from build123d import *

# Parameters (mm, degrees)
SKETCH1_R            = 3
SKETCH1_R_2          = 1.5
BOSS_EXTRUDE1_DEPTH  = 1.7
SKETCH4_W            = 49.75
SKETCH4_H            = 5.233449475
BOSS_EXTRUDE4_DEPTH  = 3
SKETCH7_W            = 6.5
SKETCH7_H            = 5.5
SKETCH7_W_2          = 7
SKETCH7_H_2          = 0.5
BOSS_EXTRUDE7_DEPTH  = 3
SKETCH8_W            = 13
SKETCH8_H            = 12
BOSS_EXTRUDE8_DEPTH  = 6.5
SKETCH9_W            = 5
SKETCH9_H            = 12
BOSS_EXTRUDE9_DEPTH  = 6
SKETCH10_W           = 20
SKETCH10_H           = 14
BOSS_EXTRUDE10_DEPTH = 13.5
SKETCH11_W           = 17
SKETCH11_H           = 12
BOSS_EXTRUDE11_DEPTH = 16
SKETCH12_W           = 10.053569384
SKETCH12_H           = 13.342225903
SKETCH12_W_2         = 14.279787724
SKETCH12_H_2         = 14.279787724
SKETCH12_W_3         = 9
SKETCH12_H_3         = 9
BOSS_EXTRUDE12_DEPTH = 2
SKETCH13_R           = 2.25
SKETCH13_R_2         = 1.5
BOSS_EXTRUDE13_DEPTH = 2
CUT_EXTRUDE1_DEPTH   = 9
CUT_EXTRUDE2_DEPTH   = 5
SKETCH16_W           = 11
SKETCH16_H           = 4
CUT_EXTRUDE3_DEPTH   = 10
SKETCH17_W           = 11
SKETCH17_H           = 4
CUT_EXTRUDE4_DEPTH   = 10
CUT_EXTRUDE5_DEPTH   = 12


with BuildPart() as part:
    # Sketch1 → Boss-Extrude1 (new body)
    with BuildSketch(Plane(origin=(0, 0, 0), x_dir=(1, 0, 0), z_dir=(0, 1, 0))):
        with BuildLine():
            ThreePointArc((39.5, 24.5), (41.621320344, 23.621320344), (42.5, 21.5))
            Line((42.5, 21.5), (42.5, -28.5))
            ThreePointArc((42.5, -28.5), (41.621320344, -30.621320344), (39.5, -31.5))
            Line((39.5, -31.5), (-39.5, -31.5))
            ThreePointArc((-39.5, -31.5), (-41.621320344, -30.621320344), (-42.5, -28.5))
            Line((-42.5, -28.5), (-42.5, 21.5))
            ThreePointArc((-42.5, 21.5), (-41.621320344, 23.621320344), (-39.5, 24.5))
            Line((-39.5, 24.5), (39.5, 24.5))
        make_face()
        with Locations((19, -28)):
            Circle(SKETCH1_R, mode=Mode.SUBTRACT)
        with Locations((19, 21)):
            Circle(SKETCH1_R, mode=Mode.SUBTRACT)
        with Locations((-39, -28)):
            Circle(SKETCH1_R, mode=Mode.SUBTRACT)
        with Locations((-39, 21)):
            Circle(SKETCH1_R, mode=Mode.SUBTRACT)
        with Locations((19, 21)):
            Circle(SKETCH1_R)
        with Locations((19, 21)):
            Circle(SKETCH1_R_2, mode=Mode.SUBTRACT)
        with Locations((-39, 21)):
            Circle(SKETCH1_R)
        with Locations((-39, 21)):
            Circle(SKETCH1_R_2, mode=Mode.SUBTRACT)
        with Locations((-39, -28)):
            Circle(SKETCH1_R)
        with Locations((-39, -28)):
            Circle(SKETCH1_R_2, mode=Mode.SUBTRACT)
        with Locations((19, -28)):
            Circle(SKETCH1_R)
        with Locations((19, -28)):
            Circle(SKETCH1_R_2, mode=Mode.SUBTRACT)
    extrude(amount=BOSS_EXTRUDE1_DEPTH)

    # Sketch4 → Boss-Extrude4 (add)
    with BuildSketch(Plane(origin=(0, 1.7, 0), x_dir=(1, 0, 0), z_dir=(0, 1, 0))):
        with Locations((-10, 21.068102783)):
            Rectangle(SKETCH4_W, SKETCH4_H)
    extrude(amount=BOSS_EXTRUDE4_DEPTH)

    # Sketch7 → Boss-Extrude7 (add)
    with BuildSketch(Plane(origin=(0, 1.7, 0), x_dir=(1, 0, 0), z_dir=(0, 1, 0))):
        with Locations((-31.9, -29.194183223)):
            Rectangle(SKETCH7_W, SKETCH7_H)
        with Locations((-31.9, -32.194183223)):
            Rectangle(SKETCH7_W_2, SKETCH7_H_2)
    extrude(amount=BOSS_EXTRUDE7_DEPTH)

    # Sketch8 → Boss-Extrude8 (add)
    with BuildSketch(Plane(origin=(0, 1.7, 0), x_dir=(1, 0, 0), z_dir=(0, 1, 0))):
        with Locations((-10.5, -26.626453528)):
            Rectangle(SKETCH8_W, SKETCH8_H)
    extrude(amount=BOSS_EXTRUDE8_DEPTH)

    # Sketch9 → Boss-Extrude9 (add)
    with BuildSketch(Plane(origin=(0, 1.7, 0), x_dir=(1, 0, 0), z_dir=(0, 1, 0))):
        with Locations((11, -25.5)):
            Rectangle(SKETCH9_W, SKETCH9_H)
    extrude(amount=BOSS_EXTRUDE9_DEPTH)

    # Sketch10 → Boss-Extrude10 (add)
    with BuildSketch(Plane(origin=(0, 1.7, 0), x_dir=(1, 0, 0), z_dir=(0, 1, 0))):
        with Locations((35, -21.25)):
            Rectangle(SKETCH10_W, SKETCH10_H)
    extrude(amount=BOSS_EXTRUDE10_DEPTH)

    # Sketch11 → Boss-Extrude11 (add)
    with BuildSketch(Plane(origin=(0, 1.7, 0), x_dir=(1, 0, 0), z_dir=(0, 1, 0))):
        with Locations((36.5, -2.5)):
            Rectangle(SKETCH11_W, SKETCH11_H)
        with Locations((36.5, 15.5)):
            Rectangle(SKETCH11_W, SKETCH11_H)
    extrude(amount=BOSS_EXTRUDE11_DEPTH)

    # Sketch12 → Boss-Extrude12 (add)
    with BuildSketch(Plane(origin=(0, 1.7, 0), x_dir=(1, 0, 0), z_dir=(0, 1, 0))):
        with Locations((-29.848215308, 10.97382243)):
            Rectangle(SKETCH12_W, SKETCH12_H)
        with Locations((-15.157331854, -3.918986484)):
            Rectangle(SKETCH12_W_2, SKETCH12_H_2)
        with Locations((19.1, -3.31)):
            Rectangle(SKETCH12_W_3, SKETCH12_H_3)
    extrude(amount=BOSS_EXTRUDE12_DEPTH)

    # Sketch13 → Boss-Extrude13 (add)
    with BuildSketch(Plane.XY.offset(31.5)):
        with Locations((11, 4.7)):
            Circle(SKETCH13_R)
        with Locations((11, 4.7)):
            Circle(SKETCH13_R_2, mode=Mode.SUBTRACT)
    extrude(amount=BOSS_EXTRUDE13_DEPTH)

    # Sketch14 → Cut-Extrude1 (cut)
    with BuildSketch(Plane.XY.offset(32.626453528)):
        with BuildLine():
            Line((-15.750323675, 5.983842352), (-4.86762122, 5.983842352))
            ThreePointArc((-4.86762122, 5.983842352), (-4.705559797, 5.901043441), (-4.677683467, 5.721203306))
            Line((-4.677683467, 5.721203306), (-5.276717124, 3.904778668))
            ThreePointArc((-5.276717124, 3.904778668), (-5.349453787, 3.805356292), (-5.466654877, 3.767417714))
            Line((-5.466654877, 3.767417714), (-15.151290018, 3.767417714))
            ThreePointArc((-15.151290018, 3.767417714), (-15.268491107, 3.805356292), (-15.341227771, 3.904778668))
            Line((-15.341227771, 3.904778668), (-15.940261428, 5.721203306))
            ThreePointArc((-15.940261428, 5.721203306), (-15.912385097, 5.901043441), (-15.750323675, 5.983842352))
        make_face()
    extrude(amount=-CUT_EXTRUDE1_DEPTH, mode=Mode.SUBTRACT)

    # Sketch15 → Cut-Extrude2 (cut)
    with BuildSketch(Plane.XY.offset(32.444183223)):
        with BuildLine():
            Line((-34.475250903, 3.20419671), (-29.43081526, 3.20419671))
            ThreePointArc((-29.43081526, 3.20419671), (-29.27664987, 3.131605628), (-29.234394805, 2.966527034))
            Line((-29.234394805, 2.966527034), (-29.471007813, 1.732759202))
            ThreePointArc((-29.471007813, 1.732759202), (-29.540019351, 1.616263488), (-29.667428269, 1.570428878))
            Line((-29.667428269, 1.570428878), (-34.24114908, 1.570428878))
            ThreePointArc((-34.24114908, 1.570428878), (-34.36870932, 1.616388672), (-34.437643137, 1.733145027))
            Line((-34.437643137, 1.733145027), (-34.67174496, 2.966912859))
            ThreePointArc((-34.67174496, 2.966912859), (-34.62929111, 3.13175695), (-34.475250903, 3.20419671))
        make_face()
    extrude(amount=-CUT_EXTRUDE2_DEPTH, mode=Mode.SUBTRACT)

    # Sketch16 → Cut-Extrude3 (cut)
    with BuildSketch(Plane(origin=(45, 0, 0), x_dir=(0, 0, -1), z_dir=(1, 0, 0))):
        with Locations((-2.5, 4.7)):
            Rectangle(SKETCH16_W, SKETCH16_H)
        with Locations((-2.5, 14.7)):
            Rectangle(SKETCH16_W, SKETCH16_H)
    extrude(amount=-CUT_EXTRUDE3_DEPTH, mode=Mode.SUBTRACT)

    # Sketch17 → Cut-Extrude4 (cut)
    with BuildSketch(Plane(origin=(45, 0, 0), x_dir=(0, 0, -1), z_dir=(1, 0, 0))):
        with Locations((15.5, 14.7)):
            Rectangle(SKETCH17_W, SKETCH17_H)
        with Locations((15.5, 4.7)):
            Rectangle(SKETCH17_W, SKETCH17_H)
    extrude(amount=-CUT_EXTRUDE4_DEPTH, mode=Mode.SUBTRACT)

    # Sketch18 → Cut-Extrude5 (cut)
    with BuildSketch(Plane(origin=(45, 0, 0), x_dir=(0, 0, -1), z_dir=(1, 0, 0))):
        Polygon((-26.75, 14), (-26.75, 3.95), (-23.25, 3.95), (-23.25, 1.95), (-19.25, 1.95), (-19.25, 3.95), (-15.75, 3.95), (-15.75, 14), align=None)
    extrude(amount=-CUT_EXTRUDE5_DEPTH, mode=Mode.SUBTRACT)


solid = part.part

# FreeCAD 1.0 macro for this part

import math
import FreeCAD as App
import Part
import Sketcher

V = App.Vector

doc = App.newDocument("Part")
params = doc.addObject("Spreadsheet::Sheet", "Params")
for row, (alias, value) in enumerate([
    ("sketch1_diameter", "3 mm"),
    ("sketch1_radius", "3 mm"),
    ("sketch1_width", "79 mm"),
    ("sketch1_height", "50 mm"),
    ("pad1_length", "1.7 mm"),
    ("sketch2_width", "49.75 mm"),
    ("pad2_length", "3 mm"),
    ("sketch3_width", "7 mm"),
    ("sketch3_width2", "6.5 mm"),
    ("sketch3_height", "5.5 mm"),
    ("sketch3_height2", "0.5 mm"),
    ("pad3_length", "3 mm"),
    ("sketch4_width", "13 mm"),
    ("sketch4_height", "12 mm"),
    ("pad4_length", "6.5 mm"),
    ("sketch5_width", "5 mm"),
    ("sketch5_height", "12 mm"),
    ("pad5_length", "6 mm"),
    ("sketch6_width", "20 mm"),
    ("sketch6_height", "14 mm"),
    ("pad6_length", "13.5 mm"),
    ("sketch7_width", "17 mm"),
    ("sketch7_height", "12 mm"),
    ("pad7_length", "16 mm"),
    ("sketch8_width", "9 mm"),
    ("pad8_length", "2 mm"),
    ("sketch9_diameter", "3 mm"),
    ("sketch9_diameter2", "4.5 mm"),
    ("pad9_length", "2 mm"),
    ("sketch10_radius", "0.2 mm"),
    ("sketch10_radius2", "0.2 mm"),
    ("sketch10_radius3", "0.2 mm"),
    ("sketch10_radius4", "0.2 mm"),
    ("pocket1_length", "9 mm"),
    ("sketch11_radius", "0.2 mm"),
    ("pocket2_length", "5 mm"),
    ("sketch12_width", "4 mm"),
    ("sketch12_height", "11 mm"),
    ("pocket3_length", "10 mm"),
    ("sketch13_width", "4 mm"),
    ("sketch13_height", "11 mm"),
    ("pocket4_length", "10 mm"),
    ("sketch14_width", "2 mm"),
    ("sketch14_height", "4 mm"),
    ("sketch14_height2", "11 mm"),
    ("sketch14_width2", "10.05 mm"),
    ("pocket5_length", "12 mm"),
], start=1):
    params.set(f"A{row}", alias)
    params.set(f"B{row}", "=" + value)
    params.setAlias(f"B{row}", alias)

body = doc.addObject("PartDesign::Body", "Body")

sketch1 = doc.addObject("Sketcher::SketchObject", "Sketch")
body.addObject(sketch1)
sketch1.AttachmentSupport = (doc.XZ_Plane, [""])
sketch1.MapMode = "FlatFace"
sketch1.addGeometry([
    Part.ArcOfCircle(Part.Circle(V(39.5, -21.5, 0), V(0, 0, 1), 3), math.radians(-90), math.radians(0)),
    Part.LineSegment(V(39.5, -24.5, 0), V(-39.5, -24.5, 0)),
    Part.ArcOfCircle(Part.Circle(V(-39.5, -21.5, 0), V(0, 0, 1), 3), math.radians(180), math.radians(270)),
    Part.LineSegment(V(-42.5, -21.5, 0), V(-42.5, 28.5, 0)),
    Part.ArcOfCircle(Part.Circle(V(-39.5, 28.5, 0), V(0, 0, 1), 3), math.radians(90), math.radians(180)),
    Part.LineSegment(V(-39.5, 31.5, 0), V(39.5, 31.5, 0)),
    Part.ArcOfCircle(Part.Circle(V(39.5, 28.5, 0), V(0, 0, 1), 3), math.radians(0), math.radians(90)),
    Part.LineSegment(V(42.5, 28.5, 0), V(42.5, -21.5, 0)),
    Part.Circle(V(19, 28, 0), V(0, 0, 1), 1.5),
    Part.Circle(V(-39, 28, 0), V(0, 0, 1), 1.5),
    Part.Circle(V(19, -21, 0), V(0, 0, 1), 1.5),
    Part.Circle(V(-39, -21, 0), V(0, 0, 1), 1.5),
], False)
sketch1.addConstraint([
    Sketcher.Constraint("Tangent", 0, 1, 1, 1),
    Sketcher.Constraint("Tangent", 1, 2, 2, 2),
    Sketcher.Constraint("Tangent", 2, 1, 3, 1),
    Sketcher.Constraint("Tangent", 3, 2, 4, 2),
    Sketcher.Constraint("Tangent", 4, 1, 5, 1),
    Sketcher.Constraint("Tangent", 5, 2, 6, 2),
    Sketcher.Constraint("Tangent", 6, 1, 7, 1),
    Sketcher.Constraint("Tangent", 7, 2, 0, 2),
    Sketcher.Constraint("Horizontal", 1),
    Sketcher.Constraint("Vertical", 3),
    Sketcher.Constraint("Horizontal", 5),
    Sketcher.Constraint("Vertical", 7),
    Sketcher.Constraint("Equal", 0, 2),
    Sketcher.Constraint("Equal", 2, 4),
    Sketcher.Constraint("Equal", 4, 6),
    Sketcher.Constraint("Equal", 8, 9),
    Sketcher.Constraint("Equal", 9, 10),
    Sketcher.Constraint("Equal", 10, 11),
    Sketcher.Constraint("Horizontal", 8, 3, 9, 3),
    Sketcher.Constraint("Horizontal", 10, 3, 11, 3),
    Sketcher.Constraint("Vertical", 8, 3, 10, 3),
    Sketcher.Constraint("Vertical", 9, 3, 11, 3),
    Sketcher.Constraint("Diameter", 8, 3.0),
    Sketcher.Constraint("Radius", 0, 3.0),
    Sketcher.Constraint("DistanceX", 1, 2, 1, 1, 79.0),
    Sketcher.Constraint("DistanceY", 3, 1, 3, 2, 50.0),
    Sketcher.Constraint("DistanceX", -1, 1, 8, 3, 19.0),
    Sketcher.Constraint("DistanceY", -1, 1, 8, 3, 28.0),
    Sketcher.Constraint("DistanceX", 9, 3, -1, 1, 39.0),
    Sketcher.Constraint("DistanceY", 10, 3, -1, 1, 21.0),
    Sketcher.Constraint("DistanceX", -1, 1, 0, 3, 39.5),
    Sketcher.Constraint("DistanceY", 0, 3, -1, 1, 21.5),
])
sketch1.setExpression("Constraints[22]", "Params.sketch1_diameter")
sketch1.setExpression("Constraints[23]", "Params.sketch1_radius")
sketch1.setExpression("Constraints[24]", "Params.sketch1_width")
sketch1.setExpression("Constraints[25]", "Params.sketch1_height")
pad1 = doc.addObject("PartDesign::Pad", "Pad")
body.addObject(pad1)
pad1.Profile = sketch1
pad1.setExpression("Length", "Params.pad1_length")
pad1.Reversed = True

sketch2 = doc.addObject("Sketcher::SketchObject", "Sketch001")
body.addObject(sketch2)
sketch2.AttachmentSupport = (doc.XZ_Plane, [""])
sketch2.MapMode = "FlatFace"
sketch2.AttachmentOffset = App.Placement(V(0, 0, -1.7), App.Rotation())
sketch2.addGeometry([
    Part.LineSegment(V(-34.875, -23.684828, 0), V(-34.875, -18.451378, 0)),
    Part.LineSegment(V(-34.875, -18.451378, 0), V(14.875, -18.451378, 0)),
    Part.LineSegment(V(14.875, -18.451378, 0), V(14.875, -23.684828, 0)),
    Part.LineSegment(V(14.875, -23.684828, 0), V(-34.875, -23.684828, 0)),
], False)
sketch2.addConstraint([
    Sketcher.Constraint("Coincident", 0, 2, 1, 1),
    Sketcher.Constraint("Coincident", 1, 2, 2, 1),
    Sketcher.Constraint("Coincident", 2, 2, 3, 1),
    Sketcher.Constraint("Coincident", 3, 2, 0, 1),
    Sketcher.Constraint("Vertical", 0),
    Sketcher.Constraint("Horizontal", 1),
    Sketcher.Constraint("Vertical", 2),
    Sketcher.Constraint("Horizontal", 3),
    Sketcher.Constraint("DistanceX", 1, 1, 1, 2, 49.75),
    Sketcher.Constraint("DistanceX", 0, 2, -1, 1, 34.875),
    Sketcher.Constraint("DistanceY", 0, 1, 0, 2, 5.233449),
    Sketcher.Constraint("DistanceY", 0, 2, -1, 1, 18.451378),
])
sketch2.setExpression("Constraints[8]", "Params.sketch2_width")
pad2 = doc.addObject("PartDesign::Pad", "Pad001")
body.addObject(pad2)
pad2.Profile = sketch2
pad2.setExpression("Length", "Params.pad2_length")
pad2.Reversed = True

sketch3 = doc.addObject("Sketcher::SketchObject", "Sketch002")
body.addObject(sketch3)
sketch3.AttachmentSupport = (doc.XZ_Plane, [""])
sketch3.MapMode = "FlatFace"
sketch3.AttachmentOffset = App.Placement(V(0, 0, -1.7), App.Rotation())
sketch3.addGeometry([
    Part.LineSegment(V(-35.15, 26.444183, 0), V(-35.15, 31.944183, 0)),
    Part.LineSegment(V(-35.15, 31.944183, 0), V(-35.4, 31.944183, 0)),
    Part.LineSegment(V(-35.4, 31.944183, 0), V(-35.4, 32.444183, 0)),
    Part.LineSegment(V(-35.4, 32.444183, 0), V(-28.4, 32.444183, 0)),
    Part.LineSegment(V(-28.4, 32.444183, 0), V(-28.4, 31.944183, 0)),
    Part.LineSegment(V(-28.4, 31.944183, 0), V(-28.65, 31.944183, 0)),
    Part.LineSegment(V(-28.65, 31.944183, 0), V(-28.65, 26.444183, 0)),
    Part.LineSegment(V(-28.65, 26.444183, 0), V(-35.15, 26.444183, 0)),
], False)
sketch3.addConstraint([
    Sketcher.Constraint("Coincident", 0, 2, 1, 1),
    Sketcher.Constraint("Coincident", 1, 2, 2, 1),
    Sketcher.Constraint("Coincident", 2, 2, 3, 1),
    Sketcher.Constraint("Coincident", 3, 2, 4, 1),
    Sketcher.Constraint("Coincident", 4, 2, 5, 1),
    Sketcher.Constraint("Coincident", 5, 2, 6, 1),
    Sketcher.Constraint("Coincident", 6, 2, 7, 1),
    Sketcher.Constraint("Coincident", 7, 2, 0, 1),
    Sketcher.Constraint("Vertical", 0),
    Sketcher.Constraint("Horizontal", 1),
    Sketcher.Constraint("Vertical", 2),
    Sketcher.Constraint("Horizontal", 3),
    Sketcher.Constraint("Vertical", 4),
    Sketcher.Constraint("Horizontal", 5),
    Sketcher.Constraint("Vertical", 6),
    Sketcher.Constraint("Horizontal", 7),
    Sketcher.Constraint("Horizontal", 1, 2, 4, 2),
    Sketcher.Constraint("Equal", 1, 5),
    Sketcher.Constraint("DistanceX", 3, 1, 3, 2, 7.0),
    Sketcher.Constraint("DistanceX", 7, 2, 7, 1, 6.5),
    Sketcher.Constraint("DistanceY", 0, 1, 0, 2, 5.5),
    Sketcher.Constraint("DistanceY", 2, 1, 2, 2, 0.5),
    Sketcher.Constraint("DistanceX", 1, 2, -1, 1, 35.4),
    Sketcher.Constraint("DistanceY", -1, 1, 0, 2, 31.944183),
])
sketch3.setExpression("Constraints[18]", "Params.sketch3_width")
sketch3.setExpression("Constraints[19]", "Params.sketch3_width2")
sketch3.setExpression("Constraints[20]", "Params.sketch3_height")
sketch3.setExpression("Constraints[21]", "Params.sketch3_height2")
pad3 = doc.addObject("PartDesign::Pad", "Pad002")
body.addObject(pad3)
pad3.Profile = sketch3
pad3.setExpression("Length", "Params.pad3_length")
pad3.Reversed = True

sketch4 = doc.addObject("Sketcher::SketchObject", "Sketch003")
body.addObject(sketch4)
sketch4.AttachmentSupport = (doc.XZ_Plane, [""])
sketch4.MapMode = "FlatFace"
sketch4.AttachmentOffset = App.Placement(V(0, 0, -1.7), App.Rotation())
sketch4.addGeometry([
    Part.LineSegment(V(-17, 20.626454, 0), V(-17, 32.626454, 0)),
    Part.LineSegment(V(-17, 32.626454, 0), V(-4, 32.626454, 0)),
    Part.LineSegment(V(-4, 32.626454, 0), V(-4, 20.626454, 0)),
    Part.LineSegment(V(-4, 20.626454, 0), V(-17, 20.626454, 0)),
], False)
sketch4.addConstraint([
    Sketcher.Constraint("Coincident", 0, 2, 1, 1),
    Sketcher.Constraint("Coincident", 1, 2, 2, 1),
    Sketcher.Constraint("Coincident", 2, 2, 3, 1),
    Sketcher.Constraint("Coincident", 3, 2, 0, 1),
    Sketcher.Constraint("Vertical", 0),
    Sketcher.Constraint("Horizontal", 1),
    Sketcher.Constraint("Vertical", 2),
    Sketcher.Constraint("Horizontal", 3),
    Sketcher.Constraint("DistanceX", 1, 1, 1, 2, 13.0),
    Sketcher.Constraint("DistanceY", 0, 1, 0, 2, 12.0),
    Sketcher.Constraint("DistanceX", 0, 2, -1, 1, 17.0),
    Sketcher.Constraint("DistanceY", -1, 1, 0, 2, 32.626454),
])
sketch4.setExpression("Constraints[8]", "Params.sketch4_width")
sketch4.setExpression("Constraints[9]", "Params.sketch4_height")
pad4 = doc.addObject("PartDesign::Pad", "Pad003")
body.addObject(pad4)
pad4.Profile = sketch4
pad4.setExpression("Length", "Params.pad4_length")
pad4.Reversed = True

sketch5 = doc.addObject("Sketcher::SketchObject", "Sketch004")
body.addObject(sketch5)
sketch5.AttachmentSupport = (doc.XZ_Plane, [""])
sketch5.MapMode = "FlatFace"
sketch5.AttachmentOffset = App.Placement(V(0, 0, -1.7), App.Rotation())
sketch5.addGeometry([
    Part.LineSegment(V(8.5, 19.5, 0), V(8.5, 31.5, 0)),
    Part.LineSegment(V(8.5, 31.5, 0), V(13.5, 31.5, 0)),
    Part.LineSegment(V(13.5, 31.5, 0), V(13.5, 19.5, 0)),
    Part.LineSegment(V(13.5, 19.5, 0), V(8.5, 19.5, 0)),
], False)
sketch5.addConstraint([
    Sketcher.Constraint("Coincident", 0, 2, 1, 1),
    Sketcher.Constraint("Coincident", 1, 2, 2, 1),
    Sketcher.Constraint("Coincident", 2, 2, 3, 1),
    Sketcher.Constraint("Coincident", 3, 2, 0, 1),
    Sketcher.Constraint("Vertical", 0),
    Sketcher.Constraint("Horizontal", 1),
    Sketcher.Constraint("Vertical", 2),
    Sketcher.Constraint("Horizontal", 3),
    Sketcher.Constraint("DistanceX", 1, 1, 1, 2, 5.0),
    Sketcher.Constraint("DistanceY", 0, 1, 0, 2, 12.0),
    Sketcher.Constraint("DistanceX", -1, 1, 0, 2, 8.5),
    Sketcher.Constraint("DistanceY", -1, 1, 0, 2, 31.5),
])
sketch5.setExpression("Constraints[8]", "Params.sketch5_width")
sketch5.setExpression("Constraints[9]", "Params.sketch5_height")
pad5 = doc.addObject("PartDesign::Pad", "Pad004")
body.addObject(pad5)
pad5.Profile = sketch5
pad5.setExpression("Length", "Params.pad5_length")
pad5.Reversed = True

sketch6 = doc.addObject("Sketcher::SketchObject", "Sketch005")
body.addObject(sketch6)
sketch6.AttachmentSupport = (doc.XZ_Plane, [""])
sketch6.MapMode = "FlatFace"
sketch6.AttachmentOffset = App.Placement(V(0, 0, -1.7), App.Rotation())
sketch6.addGeometry([
    Part.LineSegment(V(25, 14.25, 0), V(25, 28.25, 0)),
    Part.LineSegment(V(25, 28.25, 0), V(45, 28.25, 0)),
    Part.LineSegment(V(45, 28.25, 0), V(45, 14.25, 0)),
    Part.LineSegment(V(45, 14.25, 0), V(25, 14.25, 0)),
], False)
sketch6.addConstraint([
    Sketcher.Constraint("Coincident", 0, 2, 1, 1),
    Sketcher.Constraint("Coincident", 1, 2, 2, 1),
    Sketcher.Constraint("Coincident", 2, 2, 3, 1),
    Sketcher.Constraint("Coincident", 3, 2, 0, 1),
    Sketcher.Constraint("Vertical", 0),
    Sketcher.Constraint("Horizontal", 1),
    Sketcher.Constraint("Vertical", 2),
    Sketcher.Constraint("Horizontal", 3),
    Sketcher.Constraint("DistanceX", 1, 1, 1, 2, 20.0),
    Sketcher.Constraint("DistanceY", 0, 1, 0, 2, 14.0),
    Sketcher.Constraint("DistanceX", -1, 1, 0, 2, 25.0),
    Sketcher.Constraint("DistanceY", -1, 1, 0, 2, 28.25),
])
sketch6.setExpression("Constraints[8]", "Params.sketch6_width")
sketch6.setExpression("Constraints[9]", "Params.sketch6_height")
pad6 = doc.addObject("PartDesign::Pad", "Pad005")
body.addObject(pad6)
pad6.Profile = sketch6
pad6.setExpression("Length", "Params.pad6_length")
pad6.Reversed = True

sketch7 = doc.addObject("Sketcher::SketchObject", "Sketch006")
body.addObject(sketch7)
sketch7.AttachmentSupport = (doc.XZ_Plane, [""])
sketch7.MapMode = "FlatFace"
sketch7.AttachmentOffset = App.Placement(V(0, 0, -1.7), App.Rotation())
sketch7.addGeometry([
    Part.LineSegment(V(28, -3.5, 0), V(28, 8.5, 0)),
    Part.LineSegment(V(28, 8.5, 0), V(45, 8.5, 0)),
    Part.LineSegment(V(45, 8.5, 0), V(45, -3.5, 0)),
    Part.LineSegment(V(45, -3.5, 0), V(28, -3.5, 0)),
    Part.LineSegment(V(28, -21.5, 0), V(28, -9.5, 0)),
    Part.LineSegment(V(28, -9.5, 0), V(45, -9.5, 0)),
    Part.LineSegment(V(45, -9.5, 0), V(45, -21.5, 0)),
    Part.LineSegment(V(45, -21.5, 0), V(28, -21.5, 0)),
], False)
sketch7.addConstraint([
    Sketcher.Constraint("Coincident", 0, 2, 1, 1),
    Sketcher.Constraint("Coincident", 1, 2, 2, 1),
    Sketcher.Constraint("Coincident", 2, 2, 3, 1),
    Sketcher.Constraint("Coincident", 3, 2, 0, 1),
    Sketcher.Constraint("Coincident", 4, 2, 5, 1),
    Sketcher.Constraint("Coincident", 5, 2, 6, 1),
    Sketcher.Constraint("Coincident", 6, 2, 7, 1),
    Sketcher.Constraint("Coincident", 7, 2, 4, 1),
    Sketcher.Constraint("Vertical", 0),
    Sketcher.Constraint("Horizontal", 1),
    Sketcher.Constraint("Vertical", 2),
    Sketcher.Constraint("Horizontal", 3),
    Sketcher.Constraint("Vertical", 4),
    Sketcher.Constraint("Horizontal", 5),
    Sketcher.Constraint("Vertical", 6),
    Sketcher.Constraint("Horizontal", 7),
    Sketcher.Constraint("Vertical", 3, 2, 4, 2),
    Sketcher.Constraint("Vertical", 2, 2, 5, 2),
    Sketcher.Constraint("Equal", 2, 4),
    Sketcher.Constraint("DistanceX", 1, 1, 1, 2, 17.0),
    Sketcher.Constraint("DistanceY", 0, 1, 0, 2, 12.0),
    Sketcher.Constraint("DistanceX", -1, 1, 0, 2, 28.0),
    Sketcher.Constraint("DistanceY", 4, 2, 3, 2, 6.0),
    Sketcher.Constraint("DistanceY", -1, 1, 0, 2, 8.5),
])
sketch7.setExpression("Constraints[19]", "Params.sketch7_width")
sketch7.setExpression("Constraints[20]", "Params.sketch7_height")
pad7 = doc.addObject("PartDesign::Pad", "Pad006")
body.addObject(pad7)
pad7.Profile = sketch7
pad7.setExpression("Length", "Params.pad7_length")
pad7.Reversed = True

sketch8 = doc.addObject("Sketcher::SketchObject", "Sketch007")
body.addObject(sketch8)
sketch8.AttachmentSupport = (doc.XZ_Plane, [""])
sketch8.MapMode = "FlatFace"
sketch8.AttachmentOffset = App.Placement(V(0, 0, -1.7), App.Rotation())
sketch8.addGeometry([
    Part.LineSegment(V(-34.875, -17.644935, 0), V(-34.875, -4.302709, 0)),
    Part.LineSegment(V(-34.875, -4.302709, 0), V(-24.821431, -4.302709, 0)),
    Part.LineSegment(V(-24.821431, -4.302709, 0), V(-24.821431, -17.644935, 0)),
    Part.LineSegment(V(-24.821431, -17.644935, 0), V(-34.875, -17.644935, 0)),
    Part.LineSegment(V(-22.297226, -3.220907, 0), V(-22.297226, 11.05888, 0)),
    Part.LineSegment(V(-22.297226, 11.05888, 0), V(-8.017438, 11.05888, 0)),
    Part.LineSegment(V(-8.017438, 11.05888, 0), V(-8.017438, -3.220907, 0)),
    Part.LineSegment(V(-8.017438, -3.220907, 0), V(-22.297226, -3.220907, 0)),
    Part.LineSegment(V(14.6, -1.19, 0), V(14.6, 7.81, 0)),
    Part.LineSegment(V(14.6, 7.81, 0), V(23.6, 7.81, 0)),
    Part.LineSegment(V(23.6, 7.81, 0), V(23.6, -1.19, 0)),
    Part.LineSegment(V(23.6, -1.19, 0), V(14.6, -1.19, 0)),
], False)
sketch8.addConstraint([
    Sketcher.Constraint("Coincident", 0, 2, 1, 1),
    Sketcher.Constraint("Coincident", 1, 2, 2, 1),
    Sketcher.Constraint("Coincident", 2, 2, 3, 1),
    Sketcher.Constraint("Coincident", 3, 2, 0, 1),
    Sketcher.Constraint("Coincident", 4, 2, 5, 1),
    Sketcher.Constraint("Coincident", 5, 2, 6, 1),
    Sketcher.Constraint("Coincident", 6, 2, 7, 1),
    Sketcher.Constraint("Coincident", 7, 2, 4, 1),
    Sketcher.Constraint("Coincident", 8, 2, 9, 1),
    Sketcher.Constraint("Coincident", 9, 2, 10, 1),
    Sketcher.Constraint("Coincident", 10, 2, 11, 1),
    Sketcher.Constraint("Coincident", 11, 2, 8, 1),
    Sketcher.Constraint("Vertical", 0),
    Sketcher.Constraint("Horizontal", 1),
    Sketcher.Constraint("Vertical", 2),
    Sketcher.Constraint("Horizontal", 3),
    Sketcher.Constraint("Vertical", 4),
    Sketcher.Constraint("Horizontal", 5),
    Sketcher.Constraint("Vertical", 6),
    Sketcher.Constraint("Horizontal", 7),
    Sketcher.Constraint("Vertical", 8),
    Sketcher.Constraint("Horizontal", 9),
    Sketcher.Constraint("Vertical", 10),
    Sketcher.Constraint("Horizontal", 11),
    Sketcher.Constraint("Equal", 7, 4),
    Sketcher.Constraint("Equal", 11, 8),
    Sketcher.Constraint("DistanceX", 9, 1, 9, 2, 9.0),
    Sketcher.Constraint("DistanceX", -1, 1, 8, 2, 14.6),
    Sketcher.Constraint("DistanceY", -1, 1, 8, 2, 7.81),
    Sketcher.Constraint("DistanceX", 0, 2, -1, 1, 34.875),
    Sketcher.Constraint("DistanceX", 1, 1, 1, 2, 10.053569),
    Sketcher.Constraint("DistanceX", 5, 1, 5, 2, 14.279788),
    Sketcher.Constraint("DistanceY", 0, 1, 0, 2, 13.342226),
    Sketcher.Constraint("DistanceY", 0, 2, -1, 1, 4.302709),
    Sketcher.Constraint("DistanceY", -1, 1, 4, 2, 11.05888),
    Sketcher.Constraint("DistanceX", 4, 2, -1, 1, 22.297226),
])
sketch8.setExpression("Constraints[26]", "Params.sketch8_width")
pad8 = doc.addObject("PartDesign::Pad", "Pad007")
body.addObject(pad8)
pad8.Profile = sketch8
pad8.setExpression("Length", "Params.pad8_length")
pad8.Reversed = True

sketch9 = doc.addObject("Sketcher::SketchObject", "Sketch008")
body.addObject(sketch9)
sketch9.AttachmentSupport = (doc.XY_Plane, [""])
sketch9.MapMode = "FlatFace"
sketch9.AttachmentOffset = App.Placement(V(0, 0, 31.5), App.Rotation())
sketch9.addGeometry([
    Part.Circle(V(11, 4.7, 0), V(0, 0, 1), 2.25),
    Part.Circle(V(11, 4.7, 0), V(0, 0, 1), 1.5),
], False)
sketch9.addConstraint([
    Sketcher.Constraint("Coincident", 1, 3, 0, 3),
    Sketcher.Constraint("Diameter", 1, 3.0),
    Sketcher.Constraint("Diameter", 0, 4.5),
    Sketcher.Constraint("DistanceX", -1, 1, 0, 3, 11.0),
    Sketcher.Constraint("DistanceY", -1, 1, 0, 3, 4.7),
])
sketch9.setExpression("Constraints[1]", "Params.sketch9_diameter")
sketch9.setExpression("Constraints[2]", "Params.sketch9_diameter2")
pad9 = doc.addObject("PartDesign::Pad", "Pad008")
body.addObject(pad9)
pad9.Profile = sketch9
pad9.setExpression("Length", "Params.pad9_length")

sketch10 = doc.addObject("Sketcher::SketchObject", "Sketch009")
body.addObject(sketch10)
sketch10.AttachmentSupport = (doc.XY_Plane, [""])
sketch10.MapMode = "FlatFace"
sketch10.AttachmentOffset = App.Placement(V(0, 0, 32.626454), App.Rotation())
sketch10.addGeometry([
    Part.LineSegment(V(-4.867621, 5.983842, 0), V(-15.750324, 5.983842, 0)),
    Part.ArcOfCircle(Part.Circle(V(-15.750324, 5.783842, 0), V(0, 0, 1), 0.2), math.radians(90), math.radians(198.251895)),
    Part.LineSegment(V(-15.940261, 5.721203, 0), V(-15.341228, 3.904779, 0)),
    Part.ArcOfCircle(Part.Circle(V(-15.15129, 3.967418, 0), V(0, 0, 1), 0.2), math.radians(-161.748104), math.radians(-90.000001)),
    Part.LineSegment(V(-15.15129, 3.767418, 0), V(-5.466655, 3.767418, 0)),
    Part.ArcOfCircle(Part.Circle(V(-5.466655, 3.967418, 0), V(0, 0, 1), 0.2), math.radians(-90), math.radians(-18.251896)),
    Part.LineSegment(V(-5.276717, 3.904779, 0), V(-4.677683, 5.721203, 0)),
    Part.ArcOfCircle(Part.Circle(V(-4.867621, 5.783842, 0), V(0, 0, 1), 0.2), math.radians(-18.251896), math.radians(90)),
], False)
sketch10.addConstraint([
    Sketcher.Constraint("Coincident", 0, 2, 1, 1),
    Sketcher.Constraint("Coincident", 1, 2, 2, 1),
    Sketcher.Constraint("Coincident", 2, 2, 3, 1),
    Sketcher.Constraint("Coincident", 3, 2, 4, 1),
    Sketcher.Constraint("Coincident", 4, 2, 5, 1),
    Sketcher.Constraint("Coincident", 5, 2, 6, 1),
    Sketcher.Constraint("Coincident", 6, 2, 7, 1),
    Sketcher.Constraint("Coincident", 7, 2, 0, 1),
    Sketcher.Constraint("Horizontal", 0),
    Sketcher.Constraint("Horizontal", 4),
    Sketcher.Constraint("Radius", 1, 0.2),
    Sketcher.Constraint("Radius", 3, 0.2),
    Sketcher.Constraint("Radius", 5, 0.2),
    Sketcher.Constraint("Radius", 7, 0.2),
    Sketcher.Constraint("DistanceX", 0, 2, 0, 1, 10.882702),
    Sketcher.Constraint("DistanceX", 4, 1, 4, 2, 9.684635),
    Sketcher.Constraint("DistanceX", 3, 3, -1, 1, 15.15129),
    Sketcher.Constraint("DistanceX", 7, 3, -1, 1, 4.867621),
    Sketcher.Constraint("DistanceX", 1, 2, -1, 1, 15.940261),
    Sketcher.Constraint("DistanceY", -1, 1, 2, 2, 3.904779),
    Sketcher.Constraint("DistanceX", 3, 2, -1, 1, 15.15129),
    Sketcher.Constraint("DistanceY", -1, 1, 5, 2, 3.904779),
    Sketcher.Constraint("DistanceX", 7, 2, -1, 1, 4.867621),
    Sketcher.Constraint("DistanceX", 1, 3, 5, 3, 10.283669),
    Sketcher.Constraint("DistanceX", 0, 2, 5, 3, 10.283669),
    Sketcher.Constraint("DistanceY", 2, 2, 3, 3, 0.062639),
    Sketcher.Constraint("DistanceY", 6, 2, 7, 3, 0.062639),
    Sketcher.Constraint("Distance", 2, 1.912653),
])
sketch10.setExpression("Constraints[10]", "Params.sketch10_radius")
sketch10.setExpression("Constraints[11]", "Params.sketch10_radius2")
sketch10.setExpression("Constraints[12]", "Params.sketch10_radius3")
sketch10.setExpression("Constraints[13]", "Params.sketch10_radius4")
pocket1 = doc.addObject("PartDesign::Pocket", "Pocket")
body.addObject(pocket1)
pocket1.Profile = sketch10
pocket1.setExpression("Length", "Params.pocket1_length")

sketch11 = doc.addObject("Sketcher::SketchObject", "Sketch010")
body.addObject(sketch11)
sketch11.AttachmentSupport = (doc.XY_Plane, [""])
sketch11.MapMode = "FlatFace"
sketch11.AttachmentOffset = App.Placement(V(0, 0, 32.444183), App.Rotation())
sketch11.addGeometry([
    Part.LineSegment(V(-29.430815, 3.204197, 0), V(-34.475251, 3.204197, 0)),
    Part.ArcOfCircle(Part.Circle(V(-34.475251, 3.004197, 0), V(0, 0, 1), 0.2), math.radians(90), math.radians(190.74389)),
    Part.LineSegment(V(-34.671745, 2.966913, 0), V(-34.437643, 1.733145, 0)),
    Part.ArcOfCircle(Part.Circle(V(-34.241149, 1.770429, 0), V(0, 0, 1), 0.2), math.radians(-169.25611), math.radians(-90)),
    Part.LineSegment(V(-34.241149, 1.570429, 0), V(-29.667428, 1.570429, 0)),
    Part.ArcOfCircle(Part.Circle(V(-29.667428, 1.770429, 0), V(0, 0, 1), 0.2), math.radians(-90), math.radians(-10.856413)),
    Part.LineSegment(V(-29.471008, 1.732759, 0), V(-29.234395, 2.966527, 0)),
    Part.ArcOfCircle(Part.Circle(V(-29.430815, 3.004197, 0), V(0, 0, 1), 0.2), math.radians(-10.856414), math.radians(90)),
], False)
sketch11.addConstraint([
    Sketcher.Constraint("Tangent", 0, 2, 1, 1),
    Sketcher.Constraint("Tangent", 1, 2, 2, 1),
    Sketcher.Constraint("Tangent", 2, 2, 3, 1),
    Sketcher.Constraint("Tangent", 3, 2, 4, 1),
    Sketcher.Constraint("Tangent", 4, 2, 5, 1),
    Sketcher.Constraint("Tangent", 5, 2, 6, 1),
    Sketcher.Constraint("Tangent", 6, 2, 7, 1),
    Sketcher.Constraint("Tangent", 7, 2, 0, 1),
    Sketcher.Constraint("Horizontal", 0),
    Sketcher.Constraint("Horizontal", 4),
    Sketcher.Constraint("Equal", 1, 3),
    Sketcher.Constraint("Equal", 3, 5),
    Sketcher.Constraint("Equal", 5, 7),
    Sketcher.Constraint("Radius", 1, 0.2),
    Sketcher.Constraint("DistanceX", 4, 1, 4, 2, 4.573721),
    Sketcher.Constraint("DistanceX", 1, 3, 3, 3, 0.234102),
    Sketcher.Constraint("DistanceY", 5, 3, 6, 2, 1.196098),
    Sketcher.Constraint("Distance", 2, 1.255781),
    Sketcher.Constraint("DistanceX", 1, 3, -1, 1, 34.475251),
    Sketcher.Constraint("DistanceY", -1, 1, 3, 3, 1.770429),
])
sketch11.setExpression("Constraints[13]", "Params.sketch11_radius")
pocket2 = doc.addObject("PartDesign::Pocket", "Pocket001")
body.addObject(pocket2)
pocket2.Profile = sketch11
pocket2.setExpression("Length", "Params.pocket2_length")

sketch12 = doc.addObject("Sketcher::SketchObject", "Sketch011")
body.addObject(sketch12)
sketch12.AttachmentSupport = (doc.YZ_Plane, [""])
sketch12.MapMode = "FlatFace"
sketch12.AttachmentOffset = App.Placement(V(0, 0, 45), App.Rotation())
sketch12.addGeometry([
    Part.LineSegment(V(6.7, 8, 0), V(2.7, 8, 0)),
    Part.LineSegment(V(2.7, 8, 0), V(2.7, -3, 0)),
    Part.LineSegment(V(2.7, -3, 0), V(6.7, -3, 0)),
    Part.LineSegment(V(6.7, -3, 0), V(6.7, 8, 0)),
    Part.LineSegment(V(16.7, 8, 0), V(12.7, 8, 0)),
    Part.LineSegment(V(12.7, 8, 0), V(12.7, -3, 0)),
    Part.LineSegment(V(12.7, -3, 0), V(16.7, -3, 0)),
    Part.LineSegment(V(16.7, -3, 0), V(16.7, 8, 0)),
], False)
sketch12.addConstraint([
    Sketcher.Constraint("Coincident", 0, 2, 1, 1),
    Sketcher.Constraint("Coincident", 1, 2, 2, 1),
    Sketcher.Constraint("Coincident", 2, 2, 3, 1),
    Sketcher.Constraint("Coincident", 3, 2, 0, 1),
    Sketcher.Constraint("Coincident", 4, 2, 5, 1),
    Sketcher.Constraint("Coincident", 5, 2, 6, 1),
    Sketcher.Constraint("Coincident", 6, 2, 7, 1),
    Sketcher.Constraint("Coincident", 7, 2, 4, 1),
    Sketcher.Constraint("Horizontal", 0),
    Sketcher.Constraint("Vertical", 1),
    Sketcher.Constraint("Horizontal", 2),
    Sketcher.Constraint("Vertical", 3),
    Sketcher.Constraint("Horizontal", 4),
    Sketcher.Constraint("Vertical", 5),
    Sketcher.Constraint("Horizontal", 6),
    Sketcher.Constraint("Vertical", 7),
    Sketcher.Constraint("Horizontal", 3, 2, 4, 2),
    Sketcher.Constraint("Horizontal", 2, 2, 5, 2),
    Sketcher.Constraint("Equal", 2, 4),
    Sketcher.Constraint("DistanceX", 0, 2, 0, 1, 4.0),
    Sketcher.Constraint("DistanceY", 1, 2, 1, 1, 11.0),
    Sketcher.Constraint("DistanceY", -1, 1, 0, 2, 8.0),
    Sketcher.Constraint("DistanceX", 3, 2, 4, 2, 6.0),
    Sketcher.Constraint("DistanceX", -1, 1, 0, 2, 2.7),
])
sketch12.setExpression("Constraints[19]", "Params.sketch12_width")
sketch12.setExpression("Constraints[20]", "Params.sketch12_height")
pocket3 = doc.addObject("PartDesign::Pocket", "Pocket002")
body.addObject(pocket3)
pocket3.Profile = sketch12
pocket3.setExpression("Length", "Params.pocket3_length")

sketch13 = doc.addObject("Sketcher::SketchObject", "Sketch012")
body.addObject(sketch13)
sketch13.AttachmentSupport = (doc.YZ_Plane, [""])
sketch13.MapMode = "FlatFace"
sketch13.AttachmentOffset = App.Placement(V(0, 0, 45), App.Rotation())
sketch13.addGeometry([
    Part.LineSegment(V(16.7, -10, 0), V(12.7, -10, 0)),
    Part.LineSegment(V(12.7, -10, 0), V(12.7, -21, 0)),
    Part.LineSegment(V(12.7, -21, 0), V(16.7, -21, 0)),
    Part.LineSegment(V(16.7, -21, 0), V(16.7, -10, 0)),
    Part.LineSegment(V(6.7, -10, 0), V(2.7, -10, 0)),
    Part.LineSegment(V(2.7, -10, 0), V(2.7, -21, 0)),
    Part.LineSegment(V(2.7, -21, 0), V(6.7, -21, 0)),
    Part.LineSegment(V(6.7, -21, 0), V(6.7, -10, 0)),
], False)
sketch13.addConstraint([
    Sketcher.Constraint("Coincident", 0, 2, 1, 1),
    Sketcher.Constraint("Coincident", 1, 2, 2, 1),
    Sketcher.Constraint("Coincident", 2, 2, 3, 1),
    Sketcher.Constraint("Coincident", 3, 2, 0, 1),
    Sketcher.Constraint("Coincident", 4, 2, 5, 1),
    Sketcher.Constraint("Coincident", 5, 2, 6, 1),
    Sketcher.Constraint("Coincident", 6, 2, 7, 1),
    Sketcher.Constraint("Coincident", 7, 2, 4, 1),
    Sketcher.Constraint("Horizontal", 0),
    Sketcher.Constraint("Vertical", 1),
    Sketcher.Constraint("Horizontal", 2),
    Sketcher.Constraint("Vertical", 3),
    Sketcher.Constraint("Horizontal", 4),
    Sketcher.Constraint("Vertical", 5),
    Sketcher.Constraint("Horizontal", 6),
    Sketcher.Constraint("Vertical", 7),
    Sketcher.Constraint("Horizontal", 3, 2, 4, 2),
    Sketcher.Constraint("Horizontal", 2, 2, 5, 2),
    Sketcher.Constraint("Equal", 2, 4),
    Sketcher.Constraint("DistanceX", 0, 2, 0, 1, 4.0),
    Sketcher.Constraint("DistanceY", 1, 2, 1, 1, 11.0),
    Sketcher.Constraint("DistanceY", 0, 2, -1, 1, 10.0),
    Sketcher.Constraint("DistanceX", 4, 2, 0, 2, 10.0),
    Sketcher.Constraint("DistanceX", -1, 1, 0, 2, 12.7),
])
sketch13.setExpression("Constraints[19]", "Params.sketch13_width")
sketch13.setExpression("Constraints[20]", "Params.sketch13_height")
pocket4 = doc.addObject("PartDesign::Pocket", "Pocket003")
body.addObject(pocket4)
pocket4.Profile = sketch13
pocket4.setExpression("Length", "Params.pocket4_length")

sketch14 = doc.addObject("Sketcher::SketchObject", "Sketch013")
body.addObject(sketch14)
sketch14.AttachmentSupport = (doc.YZ_Plane, [""])
sketch14.MapMode = "FlatFace"
sketch14.AttachmentOffset = App.Placement(V(0, 0, 45), App.Rotation())
sketch14.addGeometry([
    Part.LineSegment(V(14, 26.75, 0), V(3.95, 26.75, 0)),
    Part.LineSegment(V(3.95, 26.75, 0), V(3.95, 23.25, 0)),
    Part.LineSegment(V(3.95, 23.25, 0), V(1.95, 23.25, 0)),
    Part.LineSegment(V(1.95, 23.25, 0), V(1.95, 19.25, 0)),
    Part.LineSegment(V(1.95, 19.25, 0), V(3.95, 19.25, 0)),
    Part.LineSegment(V(3.95, 19.25, 0), V(3.95, 15.75, 0)),
    Part.LineSegment(V(3.95, 15.75, 0), V(14, 15.75, 0)),
    Part.LineSegment(V(14, 15.75, 0), V(14, 26.75, 0)),
], False)
sketch14.addConstraint([
    Sketcher.Constraint("Coincident", 0, 2, 1, 1),
    Sketcher.Constraint("Coincident", 1, 2, 2, 1),
    Sketcher.Constraint("Coincident", 2, 2, 3, 1),
    Sketcher.Constraint("Coincident", 3, 2, 4, 1),
    Sketcher.Constraint("Coincident", 4, 2, 5, 1),
    Sketcher.Constraint("Coincident", 5, 2, 6, 1),
    Sketcher.Constraint("Coincident", 6, 2, 7, 1),
    Sketcher.Constraint("Coincident", 7, 2, 0, 1),
    Sketcher.Constraint("Horizontal", 0),
    Sketcher.Constraint("Vertical", 1),
    Sketcher.Constraint("Horizontal", 2),
    Sketcher.Constraint("Vertical", 3),
    Sketcher.Constraint("Horizontal", 4),
    Sketcher.Constraint("Vertical", 5),
    Sketcher.Constraint("Horizontal", 6),
    Sketcher.Constraint("Vertical", 7),
    Sketcher.Constraint("Vertical", 1, 2, 4, 2),
    Sketcher.Constraint("Equal", 1, 5),
    Sketcher.Constraint("DistanceX", 2, 2, 2, 1, 2.0),
    Sketcher.Constraint("DistanceY", 3, 2, 3, 1, 4.0),
    Sketcher.Constraint("DistanceY", 7, 1, 7, 2, 11.0),
    Sketcher.Constraint("DistanceX", -1, 1, 6, 2, 14.0),
    Sketcher.Constraint("DistanceX", 0, 2, 0, 1, 10.05),
    Sketcher.Constraint("DistanceY", -1, 1, 0, 2, 26.75),
])
sketch14.setExpression("Constraints[18]", "Params.sketch14_width")
sketch14.setExpression("Constraints[19]", "Params.sketch14_height")
sketch14.setExpression("Constraints[20]", "Params.sketch14_height2")
sketch14.setExpression("Constraints[22]", "Params.sketch14_width2")
pocket5 = doc.addObject("PartDesign::Pocket", "Pocket004")
body.addObject(pocket5)
pocket5.Profile = sketch14
pocket5.setExpression("Length", "Params.pocket5_length")

doc.recompute()
